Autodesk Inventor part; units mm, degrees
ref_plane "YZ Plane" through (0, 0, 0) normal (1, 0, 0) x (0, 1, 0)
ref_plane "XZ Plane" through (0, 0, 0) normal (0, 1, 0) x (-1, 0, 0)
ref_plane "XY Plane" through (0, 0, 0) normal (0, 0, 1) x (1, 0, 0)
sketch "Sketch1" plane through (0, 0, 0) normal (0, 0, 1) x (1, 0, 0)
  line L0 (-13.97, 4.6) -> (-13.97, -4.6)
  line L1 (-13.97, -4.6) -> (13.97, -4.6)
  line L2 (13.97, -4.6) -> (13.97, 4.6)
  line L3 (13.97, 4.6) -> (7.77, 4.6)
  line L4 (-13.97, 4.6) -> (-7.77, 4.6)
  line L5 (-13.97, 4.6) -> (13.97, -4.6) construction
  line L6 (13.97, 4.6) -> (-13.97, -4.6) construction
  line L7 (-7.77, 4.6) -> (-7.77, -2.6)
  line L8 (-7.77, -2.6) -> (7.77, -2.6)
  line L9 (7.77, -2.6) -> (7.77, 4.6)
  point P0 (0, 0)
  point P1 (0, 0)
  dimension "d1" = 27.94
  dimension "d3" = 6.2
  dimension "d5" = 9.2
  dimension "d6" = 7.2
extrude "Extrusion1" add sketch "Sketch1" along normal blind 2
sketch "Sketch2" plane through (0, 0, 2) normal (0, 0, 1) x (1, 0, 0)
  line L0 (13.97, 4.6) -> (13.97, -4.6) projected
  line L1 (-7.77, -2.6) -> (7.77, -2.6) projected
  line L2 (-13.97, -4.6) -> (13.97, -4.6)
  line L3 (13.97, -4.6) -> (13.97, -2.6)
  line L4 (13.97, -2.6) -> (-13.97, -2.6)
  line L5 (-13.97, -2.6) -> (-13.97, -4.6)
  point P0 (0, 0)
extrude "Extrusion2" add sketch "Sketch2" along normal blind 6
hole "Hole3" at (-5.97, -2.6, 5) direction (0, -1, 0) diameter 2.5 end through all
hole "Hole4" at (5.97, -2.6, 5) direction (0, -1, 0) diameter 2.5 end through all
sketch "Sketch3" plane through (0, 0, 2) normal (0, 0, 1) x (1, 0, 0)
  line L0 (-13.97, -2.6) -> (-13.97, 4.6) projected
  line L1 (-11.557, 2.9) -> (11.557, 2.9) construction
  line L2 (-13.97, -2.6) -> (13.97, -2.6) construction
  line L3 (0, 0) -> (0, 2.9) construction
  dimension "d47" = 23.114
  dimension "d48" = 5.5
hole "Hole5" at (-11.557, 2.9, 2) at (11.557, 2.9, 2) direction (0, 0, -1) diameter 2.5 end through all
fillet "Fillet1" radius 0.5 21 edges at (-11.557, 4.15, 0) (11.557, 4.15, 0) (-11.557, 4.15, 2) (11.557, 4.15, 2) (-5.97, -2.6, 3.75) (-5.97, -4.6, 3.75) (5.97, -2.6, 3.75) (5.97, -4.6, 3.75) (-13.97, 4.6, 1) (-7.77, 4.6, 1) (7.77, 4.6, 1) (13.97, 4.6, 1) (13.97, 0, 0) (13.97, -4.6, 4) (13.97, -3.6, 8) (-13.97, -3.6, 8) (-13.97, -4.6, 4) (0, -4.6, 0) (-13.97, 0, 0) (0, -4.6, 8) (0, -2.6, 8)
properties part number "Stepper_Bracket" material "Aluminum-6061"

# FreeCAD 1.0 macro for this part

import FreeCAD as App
import Part
import Sketcher
from FreeCAD import Vector


def edges_at(feature, points):
    """Names of the edges that pass closest to the given points."""
    edges = feature.Shape.Edges
    near = lambda p: min(range(len(edges)), key=lambda i: edges[i].distToShape(Part.Vertex(*p))[0])
    return sorted({f"Edge{near(p) + 1}" for p in points})

doc = App.newDocument("Part")
body = doc.addObject("PartDesign::Body", "Body")

# Sketch on XY plane
sketch1 = body.newObject("Sketcher::SketchObject", "Sketch")
sketch1.AttachmentSupport = (doc.getObject("XY_Plane"), [""])
sketch1.MapMode = "FlatFace"
sketch1.addGeometry(Part.LineSegment(Vector(-7.77, 4.6, 0), Vector(-13.97, 4.6, 0)), False)
sketch1.addGeometry(Part.LineSegment(Vector(-13.97, 4.6, 0), Vector(-13.97, -4.6, 0)), False)
sketch1.addGeometry(Part.LineSegment(Vector(-13.97, -4.6, 0), Vector(13.97, -4.6, 0)), False)
sketch1.addGeometry(Part.LineSegment(Vector(13.97, -4.6, 0), Vector(13.97, 4.6, 0)), False)
sketch1.addGeometry(Part.LineSegment(Vector(13.97, 4.6, 0), Vector(7.77, 4.6, 0)), False)
sketch1.addGeometry(Part.LineSegment(Vector(7.77, 4.6, 0), Vector(7.77, -2.6, 0)), False)
sketch1.addGeometry(Part.LineSegment(Vector(7.77, -2.6, 0), Vector(-7.77, -2.6, 0)), False)
sketch1.addGeometry(Part.LineSegment(Vector(-7.77, -2.6, 0), Vector(-7.77, 4.6, 0)), False)
sketch1.addConstraint(Sketcher.Constraint("Coincident", 0, 2, 1, 1))
sketch1.addConstraint(Sketcher.Constraint("Coincident", 1, 2, 2, 1))
sketch1.addConstraint(Sketcher.Constraint("Coincident", 2, 2, 3, 1))
sketch1.addConstraint(Sketcher.Constraint("Coincident", 3, 2, 4, 1))
sketch1.addConstraint(Sketcher.Constraint("Coincident", 4, 2, 5, 1))
sketch1.addConstraint(Sketcher.Constraint("Coincident", 5, 2, 6, 1))
sketch1.addConstraint(Sketcher.Constraint("Coincident", 6, 2, 7, 1))
sketch1.addConstraint(Sketcher.Constraint("Coincident", 7, 2, 0, 1))
sketch1.addConstraint(Sketcher.Constraint("Horizontal", 0))
sketch1.addConstraint(Sketcher.Constraint("Vertical", 1))
sketch1.addConstraint(Sketcher.Constraint("Horizontal", 2))
sketch1.addConstraint(Sketcher.Constraint("Vertical", 3))
sketch1.addConstraint(Sketcher.Constraint("Horizontal", 4))
sketch1.addConstraint(Sketcher.Constraint("Vertical", 5))
sketch1.addConstraint(Sketcher.Constraint("Horizontal", 6))
sketch1.addConstraint(Sketcher.Constraint("Vertical", 7))
sketch1.addConstraint(Sketcher.Constraint("Symmetric", 0, 2, 2, 2, -1, 1))
sketch1.addConstraint(Sketcher.Constraint("Symmetric", 4, 2, 7, 2, -2))
sketch1.addConstraint(Sketcher.Constraint("DistanceX", 0, 2, 0, 1, 6.2))
sketch1.addConstraint(Sketcher.Constraint("DistanceY", 1, 2, 1, 1, 9.2))
sketch1.addConstraint(Sketcher.Constraint("DistanceY", 5, 2, 5, 1, 7.2))
sketch1.addConstraint(Sketcher.Constraint("DistanceX", 2, 1, 2, 2, 27.94))
pad1 = body.newObject("PartDesign::Pad", "Pad")
pad1.Profile = sketch1
pad1.Length = 2

# Sketch on XY plane
sketch2 = body.newObject("Sketcher::SketchObject", "Sketch001")
sketch2.AttachmentSupport = (doc.getObject("XY_Plane"), [""])
sketch2.MapMode = "FlatFace"
sketch2.AttachmentOffset = App.Placement(Vector(0, 0, 2), App.Rotation())
sketch2.addGeometry(Part.LineSegment(Vector(13.97, -4.6, 0), Vector(13.97, -2.6, 0)), False)
sketch2.addGeometry(Part.LineSegment(Vector(13.97, -2.6, 0), Vector(-13.97, -2.6, 0)), False)
sketch2.addGeometry(Part.LineSegment(Vector(-13.97, -2.6, 0), Vector(-13.97, -4.6, 0)), False)
sketch2.addGeometry(Part.LineSegment(Vector(-13.97, -4.6, 0), Vector(13.97, -4.6, 0)), False)
sketch2.addConstraint(Sketcher.Constraint("Coincident", 0, 2, 1, 1))
sketch2.addConstraint(Sketcher.Constraint("Coincident", 1, 2, 2, 1))
sketch2.addConstraint(Sketcher.Constraint("Coincident", 2, 2, 3, 1))
sketch2.addConstraint(Sketcher.Constraint("Coincident", 3, 2, 0, 1))
sketch2.addConstraint(Sketcher.Constraint("Vertical", 0))
sketch2.addConstraint(Sketcher.Constraint("Horizontal", 1))
sketch2.addConstraint(Sketcher.Constraint("Vertical", 2))
sketch2.addConstraint(Sketcher.Constraint("Horizontal", 3))
sketch2.addConstraint(Sketcher.Constraint("DistanceY", 0, 1, 0, 2, 2.0))
sketch2.addConstraint(Sketcher.Constraint("DistanceX", 1, 2, 1, 1, 27.94))
sketch2.addConstraint(Sketcher.Constraint("DistanceY", 0, 2, -1, 1, 2.6))
sketch2.addConstraint(Sketcher.Constraint("DistanceX", -1, 1, 0, 2, 13.97))
pad2 = body.newObject("PartDesign::Pad", "Pad001")
pad2.Profile = sketch2
pad2.Length = 6

# Sketch on XZ plane
sketch3 = body.newObject("Sketcher::SketchObject", "Sketch002")
sketch3.AttachmentSupport = (doc.getObject("XZ_Plane"), [""])
sketch3.MapMode = "FlatFace"
sketch3.AttachmentOffset = App.Placement(Vector(0, 0, 2.6), App.Rotation())
sketch3.addGeometry(Part.Circle(Vector(-5.97, 5, 0), Vector(0, 0, 1), 1.25), False)
sketch3.addConstraint(Sketcher.Constraint("Diameter", 0, 2.5))
sketch3.addConstraint(Sketcher.Constraint("DistanceY", -1, 1, 0, 3, 5.0))
sketch3.addConstraint(Sketcher.Constraint("DistanceX", 0, 3, -1, 1, 5.97))
doc.recompute()
hole = body.newObject("PartDesign::Hole", "Hole")
hole.Profile = sketch3
hole.ThreadType = "None"
hole.Diameter = 2.5
hole.DepthType = "ThroughAll"
hole.Reversed = True

# Sketch on XZ plane
sketch4 = body.newObject("Sketcher::SketchObject", "Sketch003")
sketch4.AttachmentSupport = (doc.getObject("XZ_Plane"), [""])
sketch4.MapMode = "FlatFace"
sketch4.AttachmentOffset = App.Placement(Vector(0, 0, 2.6), App.Rotation())
sketch4.addGeometry(Part.Circle(Vector(5.97, 5, 0), Vector(0, 0, 1), 1.25), False)
sketch4.addConstraint(Sketcher.Constraint("Diameter", 0, 2.5))
sketch4.addConstraint(Sketcher.Constraint("DistanceY", -1, 1, 0, 3, 5.0))
sketch4.addConstraint(Sketcher.Constraint("DistanceX", -1, 1, 0, 3, 5.97))
doc.recompute()
hole2 = body.newObject("PartDesign::Hole", "Hole001")
hole2.Profile = sketch4
hole2.ThreadType = "None"
hole2.Diameter = 2.5
hole2.DepthType = "ThroughAll"
hole2.Reversed = True

# Sketch on XY plane
sketch5 = body.newObject("Sketcher::SketchObject", "Sketch004")
sketch5.AttachmentSupport = (doc.getObject("XY_Plane"), [""])
sketch5.MapMode = "FlatFace"
sketch5.AttachmentOffset = App.Placement(Vector(0, 0, 2), App.Rotation())
sketch5.addGeometry(Part.Circle(Vector(-11.557, 2.9, 0), Vector(0, 0, 1), 1.25), False)
sketch5.addGeometry(Part.Circle(Vector(11.557, 2.9, 0), Vector(0, 0, 1), 1.25), False)
sketch5.addConstraint(Sketcher.Constraint("Equal", 0, 1))
sketch5.addConstraint(Sketcher.Constraint("Symmetric", 0, 3, 1, 3, -2))
sketch5.addConstraint(Sketcher.Constraint("Diameter", 0, 2.5))
sketch5.addConstraint(Sketcher.Constraint("DistanceY", -1, 1, 0, 3, 2.9))
sketch5.addConstraint(Sketcher.Constraint("DistanceX", 0, 3, -1, 1, 11.557))
doc.recompute()
hole3 = body.newObject("PartDesign::Hole", "Hole002")
hole3.Profile = sketch5
hole3.ThreadType = "None"
hole3.Diameter = 2.5
hole3.DepthType = "ThroughAll"
doc.recompute()

fillet = body.newObject("PartDesign::Fillet", "Fillet")
fillet.Base = (hole3, edges_at(hole3, [
    (-11.557, 4.15, 0),
    (11.557, 4.15, 0),
    (-11.557, 4.15, 2),
    (11.557, 4.15, 2),
    (-5.97, -2.6, 3.75),
    (-5.97, -4.6, 3.75),
    (5.97, -2.6, 3.75),
    (5.97, -4.6, 3.75),
    (-13.97, 4.6, 1),
    (-7.77, 4.6, 1),
    (7.77, 4.6, 1),
    (13.97, 4.6, 1),
    (13.97, 0, 0),
    (13.97, -4.6, 4),
    (13.97, -3.6, 8),
    (-13.97, -3.6, 8),
    (-13.97, -4.6, 4),
    (0, -4.6, 0),
    (-13.97, 0, 0),
    (0, -4.6, 8),
    (0, -2.6, 8),
]))
fillet.Radius = 0.5

doc.recompute()
